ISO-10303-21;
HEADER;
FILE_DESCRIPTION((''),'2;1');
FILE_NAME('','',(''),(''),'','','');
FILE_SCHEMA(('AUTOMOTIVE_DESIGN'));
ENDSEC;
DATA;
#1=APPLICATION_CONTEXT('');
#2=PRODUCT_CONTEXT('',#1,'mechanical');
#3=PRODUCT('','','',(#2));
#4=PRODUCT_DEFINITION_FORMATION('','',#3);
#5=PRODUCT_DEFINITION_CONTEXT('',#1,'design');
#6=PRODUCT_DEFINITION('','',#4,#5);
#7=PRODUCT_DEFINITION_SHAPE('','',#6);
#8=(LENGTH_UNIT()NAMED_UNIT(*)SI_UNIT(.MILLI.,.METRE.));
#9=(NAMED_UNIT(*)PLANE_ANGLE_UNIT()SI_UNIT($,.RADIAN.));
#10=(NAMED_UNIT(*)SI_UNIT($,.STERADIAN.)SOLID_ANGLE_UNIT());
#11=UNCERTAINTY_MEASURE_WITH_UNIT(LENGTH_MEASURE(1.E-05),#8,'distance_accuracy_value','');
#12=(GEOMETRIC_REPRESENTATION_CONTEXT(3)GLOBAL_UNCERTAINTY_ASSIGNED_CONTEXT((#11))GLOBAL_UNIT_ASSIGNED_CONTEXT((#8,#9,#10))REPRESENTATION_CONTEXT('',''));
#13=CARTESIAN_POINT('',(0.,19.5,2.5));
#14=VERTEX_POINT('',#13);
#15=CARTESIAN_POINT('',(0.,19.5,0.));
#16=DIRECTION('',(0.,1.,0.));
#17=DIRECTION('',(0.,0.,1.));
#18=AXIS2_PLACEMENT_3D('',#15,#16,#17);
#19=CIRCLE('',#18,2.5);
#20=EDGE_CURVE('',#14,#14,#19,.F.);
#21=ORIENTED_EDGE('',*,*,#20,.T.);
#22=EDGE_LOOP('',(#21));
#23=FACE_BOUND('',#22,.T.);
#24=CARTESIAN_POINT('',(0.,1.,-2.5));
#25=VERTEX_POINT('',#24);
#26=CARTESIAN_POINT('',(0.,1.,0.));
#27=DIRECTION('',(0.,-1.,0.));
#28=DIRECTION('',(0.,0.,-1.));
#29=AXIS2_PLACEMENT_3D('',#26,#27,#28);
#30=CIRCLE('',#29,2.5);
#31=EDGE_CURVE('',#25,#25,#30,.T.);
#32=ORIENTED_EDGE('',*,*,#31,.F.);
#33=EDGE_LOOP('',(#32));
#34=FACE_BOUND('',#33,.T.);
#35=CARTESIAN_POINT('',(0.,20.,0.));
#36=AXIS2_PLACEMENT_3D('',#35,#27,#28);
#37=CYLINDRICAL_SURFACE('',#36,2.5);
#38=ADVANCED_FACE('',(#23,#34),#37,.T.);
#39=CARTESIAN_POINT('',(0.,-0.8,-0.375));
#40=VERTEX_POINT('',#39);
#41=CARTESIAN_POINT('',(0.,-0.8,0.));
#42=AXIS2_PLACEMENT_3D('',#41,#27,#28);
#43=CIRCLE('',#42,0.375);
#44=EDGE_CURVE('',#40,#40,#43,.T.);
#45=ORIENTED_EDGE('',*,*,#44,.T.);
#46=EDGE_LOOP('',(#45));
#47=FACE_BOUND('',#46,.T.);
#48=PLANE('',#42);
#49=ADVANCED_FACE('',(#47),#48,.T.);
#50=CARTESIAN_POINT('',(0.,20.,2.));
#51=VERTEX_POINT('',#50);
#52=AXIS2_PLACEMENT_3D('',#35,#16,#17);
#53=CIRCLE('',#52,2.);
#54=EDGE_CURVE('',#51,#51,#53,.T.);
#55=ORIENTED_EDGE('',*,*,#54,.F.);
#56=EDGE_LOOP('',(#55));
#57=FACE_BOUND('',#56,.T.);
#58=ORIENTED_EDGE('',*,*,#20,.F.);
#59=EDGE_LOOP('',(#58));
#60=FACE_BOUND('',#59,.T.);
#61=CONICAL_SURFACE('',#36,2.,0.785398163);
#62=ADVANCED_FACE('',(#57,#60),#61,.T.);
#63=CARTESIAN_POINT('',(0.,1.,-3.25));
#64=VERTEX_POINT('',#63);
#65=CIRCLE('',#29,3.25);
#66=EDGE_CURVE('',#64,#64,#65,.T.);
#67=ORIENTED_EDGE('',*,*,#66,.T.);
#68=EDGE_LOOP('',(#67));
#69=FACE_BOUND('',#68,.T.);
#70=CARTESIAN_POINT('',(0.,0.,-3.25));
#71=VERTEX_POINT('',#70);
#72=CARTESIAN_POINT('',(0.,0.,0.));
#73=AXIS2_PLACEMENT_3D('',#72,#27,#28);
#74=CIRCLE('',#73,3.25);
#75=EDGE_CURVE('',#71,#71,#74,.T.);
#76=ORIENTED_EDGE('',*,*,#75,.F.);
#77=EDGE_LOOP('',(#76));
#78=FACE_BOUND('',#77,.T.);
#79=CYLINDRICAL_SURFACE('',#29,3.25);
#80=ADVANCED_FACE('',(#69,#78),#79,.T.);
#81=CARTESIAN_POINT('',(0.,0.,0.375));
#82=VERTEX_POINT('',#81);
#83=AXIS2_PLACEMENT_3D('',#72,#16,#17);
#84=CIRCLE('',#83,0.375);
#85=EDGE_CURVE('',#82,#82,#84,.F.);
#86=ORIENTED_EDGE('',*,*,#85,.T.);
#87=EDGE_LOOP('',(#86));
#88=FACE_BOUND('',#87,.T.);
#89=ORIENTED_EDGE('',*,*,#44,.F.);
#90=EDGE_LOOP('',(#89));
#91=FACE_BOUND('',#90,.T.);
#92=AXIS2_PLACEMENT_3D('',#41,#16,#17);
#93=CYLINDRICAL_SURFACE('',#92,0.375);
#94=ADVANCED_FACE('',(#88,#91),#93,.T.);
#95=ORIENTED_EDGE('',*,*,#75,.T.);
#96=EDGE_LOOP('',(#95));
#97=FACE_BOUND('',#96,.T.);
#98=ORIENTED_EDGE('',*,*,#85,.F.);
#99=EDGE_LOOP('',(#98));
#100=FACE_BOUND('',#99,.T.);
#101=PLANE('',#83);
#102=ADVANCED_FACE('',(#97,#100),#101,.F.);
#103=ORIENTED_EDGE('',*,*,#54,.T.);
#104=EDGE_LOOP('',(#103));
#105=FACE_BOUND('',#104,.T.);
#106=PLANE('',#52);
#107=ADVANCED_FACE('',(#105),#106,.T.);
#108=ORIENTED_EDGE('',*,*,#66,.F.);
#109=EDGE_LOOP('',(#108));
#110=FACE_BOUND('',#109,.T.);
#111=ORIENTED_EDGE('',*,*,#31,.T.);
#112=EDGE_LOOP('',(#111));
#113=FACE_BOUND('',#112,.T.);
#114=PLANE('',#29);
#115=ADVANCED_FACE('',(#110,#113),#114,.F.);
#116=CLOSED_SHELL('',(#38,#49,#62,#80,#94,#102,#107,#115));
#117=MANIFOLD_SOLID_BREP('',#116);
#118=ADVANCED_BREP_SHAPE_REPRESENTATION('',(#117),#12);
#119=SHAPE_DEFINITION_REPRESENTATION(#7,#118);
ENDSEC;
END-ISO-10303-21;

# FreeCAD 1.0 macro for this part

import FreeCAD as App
import Part
import Sketcher
from FreeCAD import Vector
Q = App.Units.Quantity


def edges_at(feature, points):
    """Names of the edges that pass closest to the given points."""
    edges = feature.Shape.Edges
    near = lambda p: min(range(len(edges)), key=lambda i: edges[i].distToShape(Part.Vertex(*p))[0])
    return sorted({f"Edge{near(p) + 1}" for p in points})

doc = App.newDocument("Part")
params = doc.addObject("Spreadsheet::Sheet", "Params")
for row, (alias, value) in enumerate([
    ("sketch1_diameter", "5 mm"),
    ("pad1_length", "20 mm"),
    ("chamfer_size", "0.5 mm"),
    ("sketch2_diameter", "6.5 mm"),
    ("pad2_length", "1 mm"),
    ("sketch3_diameter", "0.75 mm"),
    ("pad3_length", "0.8 mm"),
], start=1):
    params.set(f"A{row}", alias)
    params.set(f"B{row}", "=" + value)
    params.setAlias(f"B{row}", alias)

body = doc.addObject("PartDesign::Body", "Body")

# Sketch on XZ plane
sketch1 = body.newObject("Sketcher::SketchObject", "Sketch")
sketch1.AttachmentSupport = (doc.getObject("XZ_Plane"), [""])
sketch1.MapMode = "FlatFace"
sketch1.addGeometry(Part.Circle(Vector(0, 0, 0), Vector(0, 0, 1), 2.5), False)
sketch1.addConstraint(Sketcher.Constraint("Coincident", 0, 3, -1, 1))
sketch1.addConstraint(Sketcher.Constraint("Diameter", 0, Q("5 mm")))
sketch1.setExpression("Constraints[1]", "Params.sketch1_diameter")
pad1 = body.newObject("PartDesign::Pad", "Pad")
pad1.Profile = sketch1
pad1.setExpression("Length", "Params.pad1_length")
pad1.Reversed = True
doc.recompute()

chamfer = body.newObject("PartDesign::Chamfer", "Chamfer")
chamfer.Base = (pad1, edges_at(pad1, [(0, 20, -2.5)]))
chamfer.setExpression("Size", "Params.chamfer_size")

# Sketch on XZ plane
sketch2 = body.newObject("Sketcher::SketchObject", "Sketch001")
sketch2.AttachmentSupport = (doc.getObject("XZ_Plane"), [""])
sketch2.MapMode = "FlatFace"
sketch2.addGeometry(Part.Circle(Vector(0, 0, 0), Vector(0, 0, 1), 3.2), False)
sketch2.addConstraint(Sketcher.Constraint("Coincident", 0, 3, -1, 1))
sketch2.addConstraint(Sketcher.Constraint("Diameter", 0, Q("6.5 mm")))
sketch2.setExpression("Constraints[1]", "Params.sketch2_diameter")
pad2 = body.newObject("PartDesign::Pad", "Pad001")
pad2.Profile = sketch2
pad2.setExpression("Length", "Params.pad2_length")
pad2.Reversed = True

# Sketch on XZ plane
sketch3 = body.newObject("Sketcher::SketchObject", "Sketch002")
sketch3.AttachmentSupport = (doc.getObject("XZ_Plane"), [""])
sketch3.MapMode = "FlatFace"
sketch3.addGeometry(Part.Circle(Vector(0, 0, 0), Vector(0, 0, 1), 0.38), False)
sketch3.addConstraint(Sketcher.Constraint("Coincident", 0, 3, -1, 1))
sketch3.addConstraint(Sketcher.Constraint("Diameter", 0, Q("0.75 mm")))
sketch3.setExpression("Constraints[1]", "Params.sketch3_diameter")
pad3 = body.newObject("PartDesign::Pad", "Pad002")
pad3.Profile = sketch3
pad3.setExpression("Length", "Params.pad3_length")

doc.recompute()
